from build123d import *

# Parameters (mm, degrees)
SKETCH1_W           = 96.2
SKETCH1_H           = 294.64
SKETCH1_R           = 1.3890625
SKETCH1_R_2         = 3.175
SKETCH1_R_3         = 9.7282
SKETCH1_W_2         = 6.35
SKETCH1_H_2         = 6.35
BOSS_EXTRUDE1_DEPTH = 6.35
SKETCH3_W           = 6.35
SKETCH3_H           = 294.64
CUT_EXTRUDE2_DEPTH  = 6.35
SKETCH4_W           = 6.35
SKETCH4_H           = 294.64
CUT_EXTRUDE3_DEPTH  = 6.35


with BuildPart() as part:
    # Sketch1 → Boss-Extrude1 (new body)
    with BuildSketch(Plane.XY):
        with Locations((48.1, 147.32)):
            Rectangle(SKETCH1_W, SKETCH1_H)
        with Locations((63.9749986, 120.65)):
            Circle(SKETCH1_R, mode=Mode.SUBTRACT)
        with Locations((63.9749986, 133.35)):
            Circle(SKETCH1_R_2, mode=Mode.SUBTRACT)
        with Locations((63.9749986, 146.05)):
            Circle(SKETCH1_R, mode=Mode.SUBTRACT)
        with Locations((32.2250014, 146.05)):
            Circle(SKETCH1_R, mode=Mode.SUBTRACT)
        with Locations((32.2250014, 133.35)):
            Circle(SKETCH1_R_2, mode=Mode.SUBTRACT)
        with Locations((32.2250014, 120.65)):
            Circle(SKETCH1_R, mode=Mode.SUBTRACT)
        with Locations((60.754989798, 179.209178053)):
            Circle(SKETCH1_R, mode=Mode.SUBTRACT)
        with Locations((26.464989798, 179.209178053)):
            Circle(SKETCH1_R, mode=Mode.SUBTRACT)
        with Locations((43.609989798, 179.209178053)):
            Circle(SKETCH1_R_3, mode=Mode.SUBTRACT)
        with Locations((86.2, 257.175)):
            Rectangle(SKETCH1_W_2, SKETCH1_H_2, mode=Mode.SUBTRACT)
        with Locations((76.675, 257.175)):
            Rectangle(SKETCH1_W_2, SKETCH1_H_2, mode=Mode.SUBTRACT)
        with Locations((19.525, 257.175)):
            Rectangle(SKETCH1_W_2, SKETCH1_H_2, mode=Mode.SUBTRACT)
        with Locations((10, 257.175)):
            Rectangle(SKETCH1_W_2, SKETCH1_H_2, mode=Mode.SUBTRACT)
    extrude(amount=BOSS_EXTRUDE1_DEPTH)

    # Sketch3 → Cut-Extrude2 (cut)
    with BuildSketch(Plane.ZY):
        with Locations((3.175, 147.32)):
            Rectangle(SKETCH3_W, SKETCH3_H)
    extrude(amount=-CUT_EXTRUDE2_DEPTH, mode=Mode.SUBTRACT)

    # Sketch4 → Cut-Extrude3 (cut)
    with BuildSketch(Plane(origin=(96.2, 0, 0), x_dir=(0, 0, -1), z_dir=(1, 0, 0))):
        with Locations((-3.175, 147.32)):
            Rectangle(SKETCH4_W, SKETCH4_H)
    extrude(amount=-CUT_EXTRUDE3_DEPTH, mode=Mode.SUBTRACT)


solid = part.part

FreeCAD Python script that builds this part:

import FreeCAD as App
import Part
import Sketcher
Q = App.Units.Quantity


def add_polygon(sketch, points):
    """Adds a closed chain of lines whose ends are joined by coincident constraints."""
    first, n = sketch.GeometryCount, len(points)
    for a, b in zip(points, points[1:] + points[:1]):
        sketch.addGeometry(Part.LineSegment(App.Vector(*a, 0), App.Vector(*b, 0)), False)
    for i in range(n):
        sketch.addConstraint(Sketcher.Constraint("Coincident", first + i, 2, first + (i + 1) % n, 1))

doc = App.newDocument("Part")
params = doc.addObject("Spreadsheet::Sheet", "Params")
for row, (alias, value) in enumerate([
    ("sketch1_diameter", "0.25 in"),
    ("sketch1_diameter2", "0.109375 in"),
    ("sketch1_diameter3", "0.766 in"),
    ("sketch1_height", "11.6 in"),
    ("sketch1_width", "0.25 in"),
    ("pad1_length", "0.25 in"),
    ("sketch2_width", "11.6 in"),
    ("sketch2_height", "0.25 in"),
    ("pocket1_length", "0.25 in"),
    ("sketch3_width", "11.6 in"),
    ("sketch3_height", "0.25 in"),
    ("pocket2_length", "0.25 in"),
], start=1):
    params.set(f"A{row}", alias)
    params.set(f"B{row}", "=" + value)
    params.setAlias(f"B{row}", alias)

body = doc.addObject("PartDesign::Body", "Body")

# Sketch on XY plane
sketch1 = doc.addObject("Sketcher::SketchObject", "Sketch")
body.addObject(sketch1)
sketch1.AttachmentSupport = (doc.XY_Plane, [""])
sketch1.MapMode = "FlatFace"
add_polygon(sketch1, [(0, 294.6), (0, 0), (96.2, 0), (96.2, 294.6)])  # lines 0-3
sketch1.addGeometry(Part.Circle(App.Vector(32.2, 120.7, 0), App.Vector(0, 0, 1), 1.4), False)  # 4
sketch1.addGeometry(Part.Circle(App.Vector(32.2, 133.3, 0), App.Vector(0, 0, 1), 3.2), False)  # 5
sketch1.addGeometry(Part.Circle(App.Vector(32.2, 146.1, 0), App.Vector(0, 0, 1), 1.4), False)  # 6
sketch1.addGeometry(Part.Circle(App.Vector(26.5, 179.2, 0), App.Vector(0, 0, 1), 1.4), False)  # 7
sketch1.addGeometry(Part.Circle(App.Vector(43.6, 179.2, 0), App.Vector(0, 0, 1), 9.7), False)  # 8
sketch1.addGeometry(Part.Circle(App.Vector(64, 120.7, 0), App.Vector(0, 0, 1), 1.4), False)  # 9
sketch1.addGeometry(Part.Circle(App.Vector(64, 133.3, 0), App.Vector(0, 0, 1), 3.2), False)  # 10
sketch1.addGeometry(Part.Circle(App.Vector(64, 146.1, 0), App.Vector(0, 0, 1), 1.4), False)  # 11
sketch1.addGeometry(Part.Circle(App.Vector(60.8, 179.2, 0), App.Vector(0, 0, 1), 1.4), False)  # 12
add_polygon(sketch1, [(13.2, 254), (6.8, 254), (6.8, 260.4), (13.2, 260.4)])  # lines 13-16
add_polygon(sketch1, [(22.7, 254), (16.4, 254), (16.4, 260.4), (22.7, 260.4)])  # lines 17-20
add_polygon(sketch1, [(79.8, 254), (73.5, 254), (73.5, 260.4), (79.8, 260.4)])  # lines 21-24
add_polygon(sketch1, [(89.4, 254), (83, 254), (83, 260.4), (89.4, 260.4)])  # lines 25-28
sketch1.addConstraint(Sketcher.Constraint("Vertical", 0))
sketch1.addConstraint(Sketcher.Constraint("Horizontal", 1))
sketch1.addConstraint(Sketcher.Constraint("Vertical", 2))
sketch1.addConstraint(Sketcher.Constraint("Horizontal", 3))
sketch1.addConstraint(Sketcher.Constraint("Horizontal", 13))
sketch1.addConstraint(Sketcher.Constraint("Vertical", 14))
sketch1.addConstraint(Sketcher.Constraint("Horizontal", 15))
sketch1.addConstraint(Sketcher.Constraint("Vertical", 16))
sketch1.addConstraint(Sketcher.Constraint("Horizontal", 17))
sketch1.addConstraint(Sketcher.Constraint("Vertical", 18))
sketch1.addConstraint(Sketcher.Constraint("Horizontal", 19))
sketch1.addConstraint(Sketcher.Constraint("Vertical", 20))
sketch1.addConstraint(Sketcher.Constraint("Horizontal", 21))
sketch1.addConstraint(Sketcher.Constraint("Vertical", 22))
sketch1.addConstraint(Sketcher.Constraint("Horizontal", 23))
sketch1.addConstraint(Sketcher.Constraint("Vertical", 24))
sketch1.addConstraint(Sketcher.Constraint("Horizontal", 25))
sketch1.addConstraint(Sketcher.Constraint("Vertical", 26))
sketch1.addConstraint(Sketcher.Constraint("Horizontal", 27))
sketch1.addConstraint(Sketcher.Constraint("Vertical", 28))
sketch1.addConstraint(Sketcher.Constraint("Coincident", 0, 2, -1, 1))
sketch1.addConstraint(Sketcher.Constraint("Equal", 4, 6))
sketch1.addConstraint(Sketcher.Constraint("Equal", 6, 7))
sketch1.addConstraint(Sketcher.Constraint("Equal", 7, 9))
sketch1.addConstraint(Sketcher.Constraint("Equal", 5, 10))
sketch1.addConstraint(Sketcher.Constraint("Equal", 9, 11))
sketch1.addConstraint(Sketcher.Constraint("Equal", 11, 12))
sketch1.addConstraint(Sketcher.Constraint("Horizontal", 7, 3, 8, 3))
sketch1.addConstraint(Sketcher.Constraint("Horizontal", 4, 3, 9, 3))
sketch1.addConstraint(Sketcher.Constraint("Horizontal", 5, 3, 10, 3))
sketch1.addConstraint(Sketcher.Constraint("Horizontal", 6, 3, 11, 3))
sketch1.addConstraint(Sketcher.Constraint("Horizontal", 8, 3, 12, 3))
sketch1.addConstraint(Sketcher.Constraint("Horizontal", 16, 2, 17, 2))
sketch1.addConstraint(Sketcher.Constraint("Horizontal", 15, 2, 18, 2))
sketch1.addConstraint(Sketcher.Constraint("Horizontal", 20, 2, 21, 2))
sketch1.addConstraint(Sketcher.Constraint("Horizontal", 19, 2, 22, 2))
sketch1.addConstraint(Sketcher.Constraint("Horizontal", 24, 2, 25, 2))
sketch1.addConstraint(Sketcher.Constraint("Horizontal", 23, 2, 26, 2))
sketch1.addConstraint(Sketcher.Constraint("Vertical", 4, 3, 5, 3))
sketch1.addConstraint(Sketcher.Constraint("Vertical", 5, 3, 6, 3))
sketch1.addConstraint(Sketcher.Constraint("Vertical", 9, 3, 10, 3))
sketch1.addConstraint(Sketcher.Constraint("Vertical", 10, 3, 11, 3))
sketch1.addConstraint(Sketcher.Constraint("Equal", 15, 17))
sketch1.addConstraint(Sketcher.Constraint("Equal", 19, 21))
sketch1.addConstraint(Sketcher.Constraint("Equal", 23, 25))
sketch1.addConstraint(Sketcher.Constraint("Equal", 27, 14))
sketch1.addConstraint(Sketcher.Constraint("Diameter", 5, Q("0.25 in")))
sketch1.addConstraint(Sketcher.Constraint("Diameter", 4, Q("0.109375 in")))
sketch1.addConstraint(Sketcher.Constraint("Diameter", 8, Q("0.766 in")))
sketch1.addConstraint(Sketcher.Constraint("DistanceY", 0, 2, 0, 1, Q("11.6 in")))
sketch1.addConstraint(Sketcher.Constraint("DistanceY", -1, 1, 13, 2, Q("10 in")))
sketch1.addConstraint(Sketcher.Constraint("DistanceY", 4, 3, 6, 3, Q("1 in")))
sketch1.addConstraint(Sketcher.Constraint("DistanceX", 20, 2, 21, 2, Q("2 in")))
sketch1.addConstraint(Sketcher.Constraint("DistanceX", 13, 2, 13, 1, Q("0.25 in")))
sketch1.addConstraint(Sketcher.Constraint("DistanceY", 4, 3, 5, 3, Q("0.5 in")))
sketch1.addConstraint(Sketcher.Constraint("DistanceY", -1, 1, 4, 3, Q("4.75 in")))
sketch1.addConstraint(Sketcher.Constraint("DistanceX", 4, 3, 9, 3, Q("1.2499999 in")))
sketch1.addConstraint(Sketcher.Constraint("DistanceX", 7, 3, 12, 3, Q("1.35 in")))
sketch1.addConstraint(Sketcher.Constraint("DistanceX", 7, 3, 8, 3, Q("0.675 in")))
sketch1.addConstraint(Sketcher.Constraint("DistanceX", 16, 2, 17, 2, Q("0.125 in")))
sketch1.addConstraint(Sketcher.Constraint("DistanceX", 24, 2, 25, 2, Q("0.125 in")))
sketch1.addConstraint(Sketcher.Constraint("DistanceX", 1, 1, 1, 2, Q("96.2 mm")))
sketch1.addConstraint(Sketcher.Constraint("DistanceX", -1, 1, 4, 3, Q("32.225001 mm")))
sketch1.addConstraint(Sketcher.Constraint("DistanceX", -1, 1, 13, 2, Q("6.825 mm")))
sketch1.addConstraint(Sketcher.Constraint("DistanceX", -1, 1, 7, 3, Q("26.46499 mm")))
sketch1.addConstraint(Sketcher.Constraint("DistanceY", -1, 1, 7, 3, Q("179.209178 mm")))
sketch1.setExpression("Constraints[66]", "Params.sketch1_diameter")
sketch1.setExpression("Constraints[67]", "Params.sketch1_diameter2")
sketch1.setExpression("Constraints[68]", "Params.sketch1_diameter3")
sketch1.setExpression("Constraints[69]", "Params.sketch1_height")
sketch1.setExpression("Constraints[73]", "Params.sketch1_width")
pad1 = doc.addObject("PartDesign::Pad", "Pad")
body.addObject(pad1)
pad1.Profile = sketch1
pad1.setExpression("Length", "Params.pad1_length")

# Sketch on YZ plane
sketch2 = doc.addObject("Sketcher::SketchObject", "Sketch001")
body.addObject(sketch2)
sketch2.AttachmentSupport = (doc.YZ_Plane, [""])
sketch2.MapMode = "FlatFace"
add_polygon(sketch2, [(295, 0), (0, 0), (0, 6), (295, 6)])  # lines 0-3
sketch2.addConstraint(Sketcher.Constraint("Horizontal", 0))
sketch2.addConstraint(Sketcher.Constraint("Vertical", 1))
sketch2.addConstraint(Sketcher.Constraint("Horizontal", 2))
sketch2.addConstraint(Sketcher.Constraint("Vertical", 3))
sketch2.addConstraint(Sketcher.Constraint("Coincident", 0, 2, -1, 1))
sketch2.addConstraint(Sketcher.Constraint("DistanceX", 0, 2, 0, 1, Q("11.6 in")))
sketch2.addConstraint(Sketcher.Constraint("DistanceY", 1, 1, 1, 2, Q("0.25 in")))
sketch2.setExpression("Constraints[9]", "Params.sketch2_width")
sketch2.setExpression("Constraints[10]", "Params.sketch2_height")
pocket1 = doc.addObject("PartDesign::Pocket", "Pocket")
body.addObject(pocket1)
pocket1.Profile = sketch2
pocket1.setExpression("Length", "Params.pocket1_length")
pocket1.Reversed = True

# Sketch on YZ plane
sketch3 = doc.addObject("Sketcher::SketchObject", "Sketch002")
body.addObject(sketch3)
sketch3.AttachmentSupport = (doc.YZ_Plane, [""])
sketch3.MapMode = "FlatFace"
sketch3.AttachmentOffset = App.Placement(App.Vector(0, 0, 96.2), App.Rotation())
add_polygon(sketch3, [(295, 6), (0, 6), (0, 0), (295, 0)])  # lines 0-3
sketch3.addConstraint(Sketcher.Constraint("Horizontal", 0))
sketch3.addConstraint(Sketcher.Constraint("Vertical", 1))
sketch3.addConstraint(Sketcher.Constraint("Horizontal", 2))
sketch3.addConstraint(Sketcher.Constraint("Vertical", 3))
sketch3.addConstraint(Sketcher.Constraint("Coincident", 1, 2, -1, 1))
sketch3.addConstraint(Sketcher.Constraint("DistanceX", 0, 2, 0, 1, Q("11.6 in")))
sketch3.addConstraint(Sketcher.Constraint("DistanceY", 1, 2, 1, 1, Q("0.25 in")))
sketch3.setExpression("Constraints[9]", "Params.sketch3_width")
sketch3.setExpression("Constraints[10]", "Params.sketch3_height")
pocket2 = doc.addObject("PartDesign::Pocket", "Pocket001")
body.addObject(pocket2)
pocket2.Profile = sketch3
pocket2.setExpression("Length", "Params.pocket2_length")

doc.recompute()
